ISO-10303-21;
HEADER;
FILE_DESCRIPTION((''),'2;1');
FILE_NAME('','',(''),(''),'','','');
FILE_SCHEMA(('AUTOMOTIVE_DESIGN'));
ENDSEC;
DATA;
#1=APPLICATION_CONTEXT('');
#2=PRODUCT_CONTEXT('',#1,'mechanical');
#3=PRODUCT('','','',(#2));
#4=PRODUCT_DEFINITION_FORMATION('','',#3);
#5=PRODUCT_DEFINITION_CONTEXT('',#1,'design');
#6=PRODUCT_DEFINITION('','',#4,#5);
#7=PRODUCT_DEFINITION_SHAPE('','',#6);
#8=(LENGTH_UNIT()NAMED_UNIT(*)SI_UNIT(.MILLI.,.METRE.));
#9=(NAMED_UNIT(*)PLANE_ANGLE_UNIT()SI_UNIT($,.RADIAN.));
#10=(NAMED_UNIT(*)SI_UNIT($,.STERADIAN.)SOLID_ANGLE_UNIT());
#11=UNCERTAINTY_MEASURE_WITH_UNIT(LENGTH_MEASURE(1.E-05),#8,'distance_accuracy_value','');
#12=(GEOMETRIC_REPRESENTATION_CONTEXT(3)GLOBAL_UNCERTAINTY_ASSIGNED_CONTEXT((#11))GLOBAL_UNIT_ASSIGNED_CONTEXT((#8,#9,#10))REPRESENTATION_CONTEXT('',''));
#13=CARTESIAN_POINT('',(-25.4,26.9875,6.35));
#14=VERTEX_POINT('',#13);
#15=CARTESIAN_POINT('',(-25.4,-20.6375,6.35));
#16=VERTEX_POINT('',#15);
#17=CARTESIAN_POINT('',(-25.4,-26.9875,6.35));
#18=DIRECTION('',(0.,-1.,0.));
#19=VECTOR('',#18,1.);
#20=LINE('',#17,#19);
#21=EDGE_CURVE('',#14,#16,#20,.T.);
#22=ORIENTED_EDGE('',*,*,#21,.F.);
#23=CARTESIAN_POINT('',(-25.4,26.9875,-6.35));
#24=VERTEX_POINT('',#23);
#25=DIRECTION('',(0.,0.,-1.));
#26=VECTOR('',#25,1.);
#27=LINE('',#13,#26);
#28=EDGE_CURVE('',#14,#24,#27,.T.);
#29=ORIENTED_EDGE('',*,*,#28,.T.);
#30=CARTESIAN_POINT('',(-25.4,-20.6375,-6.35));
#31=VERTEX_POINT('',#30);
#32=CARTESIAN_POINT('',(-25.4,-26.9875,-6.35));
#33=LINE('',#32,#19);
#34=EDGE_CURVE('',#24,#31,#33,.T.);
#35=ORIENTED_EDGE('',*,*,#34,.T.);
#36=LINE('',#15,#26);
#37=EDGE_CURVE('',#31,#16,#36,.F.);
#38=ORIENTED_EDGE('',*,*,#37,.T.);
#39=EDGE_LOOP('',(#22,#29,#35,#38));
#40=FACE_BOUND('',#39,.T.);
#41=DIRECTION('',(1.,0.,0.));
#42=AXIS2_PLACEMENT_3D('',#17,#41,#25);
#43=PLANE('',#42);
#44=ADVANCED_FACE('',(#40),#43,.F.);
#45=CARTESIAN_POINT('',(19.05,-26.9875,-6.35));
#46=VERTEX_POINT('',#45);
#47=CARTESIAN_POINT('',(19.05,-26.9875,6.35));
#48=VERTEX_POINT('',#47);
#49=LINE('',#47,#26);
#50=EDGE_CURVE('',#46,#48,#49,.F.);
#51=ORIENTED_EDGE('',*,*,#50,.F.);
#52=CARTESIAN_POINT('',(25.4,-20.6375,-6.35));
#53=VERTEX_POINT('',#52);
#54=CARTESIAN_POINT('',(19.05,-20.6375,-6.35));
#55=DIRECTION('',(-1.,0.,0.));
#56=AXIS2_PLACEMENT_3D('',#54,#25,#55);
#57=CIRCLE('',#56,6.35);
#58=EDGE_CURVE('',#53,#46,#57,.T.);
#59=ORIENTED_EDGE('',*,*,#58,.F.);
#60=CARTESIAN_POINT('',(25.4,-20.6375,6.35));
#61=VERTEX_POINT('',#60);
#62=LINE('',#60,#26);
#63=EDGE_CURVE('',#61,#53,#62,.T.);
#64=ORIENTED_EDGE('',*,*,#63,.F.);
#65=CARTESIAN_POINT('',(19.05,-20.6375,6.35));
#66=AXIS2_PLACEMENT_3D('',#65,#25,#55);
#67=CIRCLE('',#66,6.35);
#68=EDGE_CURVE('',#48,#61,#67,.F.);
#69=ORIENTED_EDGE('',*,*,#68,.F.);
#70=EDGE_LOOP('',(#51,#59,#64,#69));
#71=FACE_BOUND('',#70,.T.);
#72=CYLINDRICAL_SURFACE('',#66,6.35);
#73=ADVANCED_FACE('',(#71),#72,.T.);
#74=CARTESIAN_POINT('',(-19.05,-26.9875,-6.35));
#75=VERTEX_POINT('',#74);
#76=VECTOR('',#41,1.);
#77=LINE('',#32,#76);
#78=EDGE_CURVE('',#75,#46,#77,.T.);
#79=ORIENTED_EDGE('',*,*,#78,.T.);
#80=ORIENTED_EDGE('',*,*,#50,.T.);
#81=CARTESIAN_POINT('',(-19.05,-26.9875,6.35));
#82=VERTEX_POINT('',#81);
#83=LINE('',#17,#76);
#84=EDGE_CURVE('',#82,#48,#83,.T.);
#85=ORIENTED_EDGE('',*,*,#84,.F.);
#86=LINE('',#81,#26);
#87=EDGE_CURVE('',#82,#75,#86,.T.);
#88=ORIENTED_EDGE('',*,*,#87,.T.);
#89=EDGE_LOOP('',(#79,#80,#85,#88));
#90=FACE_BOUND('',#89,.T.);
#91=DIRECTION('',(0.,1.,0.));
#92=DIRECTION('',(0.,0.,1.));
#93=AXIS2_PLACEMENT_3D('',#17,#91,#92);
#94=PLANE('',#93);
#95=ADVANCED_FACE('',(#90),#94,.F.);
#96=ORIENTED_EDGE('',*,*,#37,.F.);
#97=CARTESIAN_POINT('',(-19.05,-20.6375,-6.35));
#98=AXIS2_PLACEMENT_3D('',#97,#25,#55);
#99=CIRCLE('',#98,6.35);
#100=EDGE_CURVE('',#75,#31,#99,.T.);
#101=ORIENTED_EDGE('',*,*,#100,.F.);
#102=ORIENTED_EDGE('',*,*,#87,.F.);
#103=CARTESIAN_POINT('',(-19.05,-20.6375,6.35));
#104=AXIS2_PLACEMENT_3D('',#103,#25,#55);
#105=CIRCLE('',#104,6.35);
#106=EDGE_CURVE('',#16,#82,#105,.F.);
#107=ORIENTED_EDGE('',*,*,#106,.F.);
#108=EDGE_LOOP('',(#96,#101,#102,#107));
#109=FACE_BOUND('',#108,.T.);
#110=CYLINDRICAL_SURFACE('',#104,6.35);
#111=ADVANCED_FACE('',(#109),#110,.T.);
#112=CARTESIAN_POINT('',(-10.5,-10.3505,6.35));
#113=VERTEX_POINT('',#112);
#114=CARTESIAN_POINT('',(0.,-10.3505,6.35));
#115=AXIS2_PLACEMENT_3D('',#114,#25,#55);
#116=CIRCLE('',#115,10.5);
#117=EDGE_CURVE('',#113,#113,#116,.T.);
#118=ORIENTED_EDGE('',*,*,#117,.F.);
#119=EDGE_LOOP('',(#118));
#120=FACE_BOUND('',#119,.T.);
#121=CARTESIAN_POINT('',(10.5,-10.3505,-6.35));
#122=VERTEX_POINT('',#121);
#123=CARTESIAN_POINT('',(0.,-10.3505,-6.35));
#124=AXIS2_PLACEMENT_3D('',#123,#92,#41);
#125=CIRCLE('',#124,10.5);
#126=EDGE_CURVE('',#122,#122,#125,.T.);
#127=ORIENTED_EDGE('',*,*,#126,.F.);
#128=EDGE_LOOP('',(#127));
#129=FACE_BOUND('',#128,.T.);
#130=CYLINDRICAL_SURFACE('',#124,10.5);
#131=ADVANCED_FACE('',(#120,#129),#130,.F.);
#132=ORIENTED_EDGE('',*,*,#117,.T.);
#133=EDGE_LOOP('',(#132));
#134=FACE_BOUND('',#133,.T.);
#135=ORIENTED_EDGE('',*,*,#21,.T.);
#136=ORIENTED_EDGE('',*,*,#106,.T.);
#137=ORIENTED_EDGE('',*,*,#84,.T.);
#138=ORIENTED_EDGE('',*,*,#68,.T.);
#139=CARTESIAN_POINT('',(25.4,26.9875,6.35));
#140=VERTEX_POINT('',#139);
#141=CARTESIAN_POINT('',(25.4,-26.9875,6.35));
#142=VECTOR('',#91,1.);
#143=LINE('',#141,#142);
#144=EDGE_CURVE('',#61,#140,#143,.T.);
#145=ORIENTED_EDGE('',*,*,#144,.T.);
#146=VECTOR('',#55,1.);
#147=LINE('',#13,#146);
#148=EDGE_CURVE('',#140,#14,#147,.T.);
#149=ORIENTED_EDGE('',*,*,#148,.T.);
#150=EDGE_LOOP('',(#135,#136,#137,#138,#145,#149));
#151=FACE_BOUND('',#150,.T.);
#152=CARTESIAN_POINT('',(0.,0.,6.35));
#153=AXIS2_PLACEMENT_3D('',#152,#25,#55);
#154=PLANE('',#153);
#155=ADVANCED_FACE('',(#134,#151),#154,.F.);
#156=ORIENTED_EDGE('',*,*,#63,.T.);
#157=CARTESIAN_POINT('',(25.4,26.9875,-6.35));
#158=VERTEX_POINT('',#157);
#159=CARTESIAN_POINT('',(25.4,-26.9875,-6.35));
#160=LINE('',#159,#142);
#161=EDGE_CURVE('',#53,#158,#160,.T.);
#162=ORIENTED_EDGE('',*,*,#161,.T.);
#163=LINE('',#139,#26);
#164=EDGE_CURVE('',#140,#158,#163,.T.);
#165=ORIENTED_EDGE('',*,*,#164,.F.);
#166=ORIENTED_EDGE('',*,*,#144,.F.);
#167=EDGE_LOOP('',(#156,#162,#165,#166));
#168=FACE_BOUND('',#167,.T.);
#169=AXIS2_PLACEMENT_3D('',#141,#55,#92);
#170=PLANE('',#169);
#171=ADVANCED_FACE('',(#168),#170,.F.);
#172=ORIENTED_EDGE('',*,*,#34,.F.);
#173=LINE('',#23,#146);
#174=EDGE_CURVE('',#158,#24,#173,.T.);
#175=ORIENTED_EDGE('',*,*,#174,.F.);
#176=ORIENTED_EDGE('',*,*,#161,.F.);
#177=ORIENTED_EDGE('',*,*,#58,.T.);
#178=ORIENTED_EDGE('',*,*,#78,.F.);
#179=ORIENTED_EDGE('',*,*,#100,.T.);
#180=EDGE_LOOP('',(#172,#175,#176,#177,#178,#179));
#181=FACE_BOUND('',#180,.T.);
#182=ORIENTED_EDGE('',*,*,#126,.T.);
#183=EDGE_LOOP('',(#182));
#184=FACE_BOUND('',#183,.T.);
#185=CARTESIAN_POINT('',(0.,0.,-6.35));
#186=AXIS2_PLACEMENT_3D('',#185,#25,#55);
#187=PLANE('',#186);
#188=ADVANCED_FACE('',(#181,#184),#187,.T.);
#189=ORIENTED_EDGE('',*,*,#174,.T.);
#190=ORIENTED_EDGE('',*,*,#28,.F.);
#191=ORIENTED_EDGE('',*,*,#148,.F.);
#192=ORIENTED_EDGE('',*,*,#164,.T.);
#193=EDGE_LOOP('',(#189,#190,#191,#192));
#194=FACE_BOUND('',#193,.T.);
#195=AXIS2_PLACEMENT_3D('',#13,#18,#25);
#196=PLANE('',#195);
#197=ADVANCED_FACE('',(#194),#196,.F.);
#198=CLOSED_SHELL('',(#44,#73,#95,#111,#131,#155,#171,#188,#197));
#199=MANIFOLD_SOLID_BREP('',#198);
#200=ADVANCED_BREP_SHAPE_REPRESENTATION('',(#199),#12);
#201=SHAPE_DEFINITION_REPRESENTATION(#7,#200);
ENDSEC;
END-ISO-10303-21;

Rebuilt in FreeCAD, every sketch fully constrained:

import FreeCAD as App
import Part
import Sketcher
from FreeCAD import Vector
Q = App.Units.Quantity


def edges_at(feature, points):
    """Names of the edges that pass closest to the given points."""
    edges = feature.Shape.Edges
    near = lambda p: min(range(len(edges)), key=lambda i: edges[i].distToShape(Part.Vertex(*p))[0])
    return sorted({f"Edge{near(p) + 1}" for p in points})

doc = App.newDocument("Part")
body = doc.addObject("PartDesign::Body", "Body")

# Sketch on XY plane
sketch1 = body.newObject("Sketcher::SketchObject", "Sketch")
sketch1.AttachmentSupport = (doc.getObject("XY_Plane"), [""])
sketch1.MapMode = "FlatFace"
sketch1.addGeometry(Part.LineSegment(Vector(-25.4, 26.9875, 0), Vector(-25.4, -26.9875, 0)), False)
sketch1.addGeometry(Part.LineSegment(Vector(-25.4, -26.9875, 0), Vector(25.4, -26.9875, 0)), False)
sketch1.addGeometry(Part.LineSegment(Vector(25.4, -26.9875, 0), Vector(25.4, 26.9875, 0)), False)
sketch1.addGeometry(Part.LineSegment(Vector(25.4, 26.9875, 0), Vector(-25.4, 26.9875, 0)), False)
sketch1.addConstraint(Sketcher.Constraint("Coincident", 0, 2, 1, 1))
sketch1.addConstraint(Sketcher.Constraint("Coincident", 1, 2, 2, 1))
sketch1.addConstraint(Sketcher.Constraint("Coincident", 2, 2, 3, 1))
sketch1.addConstraint(Sketcher.Constraint("Coincident", 3, 2, 0, 1))
sketch1.addConstraint(Sketcher.Constraint("Vertical", 0))
sketch1.addConstraint(Sketcher.Constraint("Horizontal", 1))
sketch1.addConstraint(Sketcher.Constraint("Vertical", 2))
sketch1.addConstraint(Sketcher.Constraint("Horizontal", 3))
sketch1.addConstraint(Sketcher.Constraint("Symmetric", 0, 2, 2, 2, -1, 1))
sketch1.addConstraint(Sketcher.Constraint("DistanceX", 1, 1, 1, 2, Q("2 in")))
sketch1.addConstraint(Sketcher.Constraint("DistanceY", 0, 2, 0, 1, Q("2.125 in")))
pad1 = body.newObject("PartDesign::Pad", "Pad")
pad1.Profile = sketch1
pad1.Length = Q("0.5 in")
pad1.Midplane = True

# Sketch on XY plane
sketch2 = body.newObject("Sketcher::SketchObject", "Sketch001")
sketch2.AttachmentSupport = (doc.getObject("XY_Plane"), [""])
sketch2.MapMode = "FlatFace"
sketch2.AttachmentOffset = App.Placement(Vector(0, 0, 0.25 * 25.4), App.Rotation())
sketch2.addGeometry(Part.Circle(Vector(0, -10.3505, 0), Vector(0, 0, 1), 10.5), False)
sketch2.addConstraint(Sketcher.Constraint("PointOnObject", 0, 3, -2))
sketch2.addConstraint(Sketcher.Constraint("Diameter", 0, 21.0))
sketch2.addConstraint(Sketcher.Constraint("DistanceY", 0, 3, -1, 1, Q("0.4075 in")))
pocket1 = body.newObject("PartDesign::Pocket", "Pocket")
pocket1.Profile = sketch2
pocket1.Type = "ThroughAll"
pocket1.Midplane = True
doc.recompute()

fillet = body.newObject("PartDesign::Fillet", "Fillet")
fillet.Base = (pocket1, edges_at(pocket1, [(25.4, -26.988, 0), (-25.4, -26.988, 0)]))
fillet.Radius = Q("0.25 in")

doc.recompute()
